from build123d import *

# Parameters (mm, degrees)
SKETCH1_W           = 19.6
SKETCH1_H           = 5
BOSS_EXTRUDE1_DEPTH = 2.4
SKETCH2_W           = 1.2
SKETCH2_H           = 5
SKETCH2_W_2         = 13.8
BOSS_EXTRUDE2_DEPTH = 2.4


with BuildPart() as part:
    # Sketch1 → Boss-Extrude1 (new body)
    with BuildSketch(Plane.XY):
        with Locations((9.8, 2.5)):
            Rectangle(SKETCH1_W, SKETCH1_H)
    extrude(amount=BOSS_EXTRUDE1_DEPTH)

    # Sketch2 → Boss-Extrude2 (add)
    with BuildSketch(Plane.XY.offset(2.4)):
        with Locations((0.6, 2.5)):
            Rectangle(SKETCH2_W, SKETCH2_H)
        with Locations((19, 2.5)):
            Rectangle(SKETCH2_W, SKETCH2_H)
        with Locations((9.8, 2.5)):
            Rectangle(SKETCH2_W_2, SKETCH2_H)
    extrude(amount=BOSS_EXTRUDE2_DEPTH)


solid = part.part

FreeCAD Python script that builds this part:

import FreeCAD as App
import Part
import Sketcher

doc = App.newDocument("Part")
body = doc.addObject("PartDesign::Body", "Body")

sketch1 = doc.addObject("Sketcher::SketchObject", "Sketch")
body.addObject(sketch1)
sketch1.AttachmentSupport = (doc.XY_Plane, [""])
sketch1.MapMode = "FlatFace"
sketch1.addGeometry([
    Part.LineSegment(App.Vector(0, 5, 0), App.Vector(0, 0, 0)),
    Part.LineSegment(App.Vector(0, 0, 0), App.Vector(20, 0, 0)),
    Part.LineSegment(App.Vector(20, 0, 0), App.Vector(20, 5, 0)),
    Part.LineSegment(App.Vector(20, 5, 0), App.Vector(0, 5, 0)),
], False)
sketch1.addConstraint([
    Sketcher.Constraint("Coincident", 0, 2, 1, 1),
    Sketcher.Constraint("Coincident", 1, 2, 2, 1),
    Sketcher.Constraint("Coincident", 2, 2, 3, 1),
    Sketcher.Constraint("Coincident", 3, 2, 0, 1),
    Sketcher.Constraint("Vertical", 0),
    Sketcher.Constraint("Horizontal", 1),
    Sketcher.Constraint("Vertical", 2),
    Sketcher.Constraint("Horizontal", 3),
    Sketcher.Constraint("Coincident", 0, 2, -1, 1),
    Sketcher.Constraint("DistanceY", 0, 2, 0, 1, 5.0),
    Sketcher.Constraint("DistanceX", 1, 1, 1, 2, 19.6),
])
pad1 = doc.addObject("PartDesign::Pad", "Pad")
body.addObject(pad1)
pad1.Profile = sketch1
pad1.Length = 2.4

sketch2 = doc.addObject("Sketcher::SketchObject", "Sketch001")
body.addObject(sketch2)
sketch2.AttachmentSupport = (doc.XY_Plane, [""])
sketch2.MapMode = "FlatFace"
sketch2.AttachmentOffset = App.Placement(App.Vector(0, 0, 2.4), App.Rotation())
sketch2.addGeometry([
    Part.LineSegment(App.Vector(0, 5, 0), App.Vector(0, 0, 0)),
    Part.LineSegment(App.Vector(0, 0, 0), App.Vector(1.2, 0, 0)),
    Part.LineSegment(App.Vector(1.2, 0, 0), App.Vector(1.2, 5, 0)),
    Part.LineSegment(App.Vector(1.2, 5, 0), App.Vector(0, 5, 0)),
    Part.LineSegment(App.Vector(18.4, 5, 0), App.Vector(18.4, 0, 0)),
    Part.LineSegment(App.Vector(18.4, 0, 0), App.Vector(19.6, 0, 0)),
    Part.LineSegment(App.Vector(19.6, 0, 0), App.Vector(19.6, 5, 0)),
    Part.LineSegment(App.Vector(19.6, 5, 0), App.Vector(18.4, 5, 0)),
    Part.LineSegment(App.Vector(2.9, 5, 0), App.Vector(2.9, 0, 0)),
    Part.LineSegment(App.Vector(2.9, 0, 0), App.Vector(16.7, 0, 0)),
    Part.LineSegment(App.Vector(16.7, 0, 0), App.Vector(16.7, 5, 0)),
    Part.LineSegment(App.Vector(16.7, 5, 0), App.Vector(2.9, 5, 0)),
], False)
sketch2.addConstraint([
    Sketcher.Constraint("Coincident", 0, 2, 1, 1),
    Sketcher.Constraint("Coincident", 1, 2, 2, 1),
    Sketcher.Constraint("Coincident", 2, 2, 3, 1),
    Sketcher.Constraint("Coincident", 3, 2, 0, 1),
    Sketcher.Constraint("Coincident", 4, 2, 5, 1),
    Sketcher.Constraint("Coincident", 5, 2, 6, 1),
    Sketcher.Constraint("Coincident", 6, 2, 7, 1),
    Sketcher.Constraint("Coincident", 7, 2, 4, 1),
    Sketcher.Constraint("Coincident", 8, 2, 9, 1),
    Sketcher.Constraint("Coincident", 9, 2, 10, 1),
    Sketcher.Constraint("Coincident", 10, 2, 11, 1),
    Sketcher.Constraint("Coincident", 11, 2, 8, 1),
    Sketcher.Constraint("Vertical", 0),
    Sketcher.Constraint("Horizontal", 1),
    Sketcher.Constraint("Vertical", 2),
    Sketcher.Constraint("Horizontal", 3),
    Sketcher.Constraint("Vertical", 4),
    Sketcher.Constraint("Horizontal", 5),
    Sketcher.Constraint("Vertical", 6),
    Sketcher.Constraint("Horizontal", 7),
    Sketcher.Constraint("Vertical", 8),
    Sketcher.Constraint("Horizontal", 9),
    Sketcher.Constraint("Vertical", 10),
    Sketcher.Constraint("Horizontal", 11),
    Sketcher.Constraint("Coincident", 0, 2, -1, 1),
    Sketcher.Constraint("PointOnObject", 4, 2, -1),
    Sketcher.Constraint("PointOnObject", 8, 2, -1),
    Sketcher.Constraint("Horizontal", 3, 2, 6, 2),
    Sketcher.Constraint("Horizontal", 7, 2, 10, 2),
    Sketcher.Constraint("Equal", 3, 5),
    Sketcher.Constraint("DistanceY", 0, 2, 0, 1, 5.0),
    Sketcher.Constraint("DistanceX", 1, 1, 1, 2, 1.2),
    Sketcher.Constraint("DistanceX", 9, 1, 9, 2, 13.8),
    Sketcher.Constraint("DistanceX", -1, 1, 4, 2, 18.4),
    Sketcher.Constraint("DistanceX", -1, 1, 8, 2, 2.9),
])
pad2 = doc.addObject("PartDesign::Pad", "Pad001")
body.addObject(pad2)
pad2.Profile = sketch2
pad2.Length = 2.4

doc.recompute()
